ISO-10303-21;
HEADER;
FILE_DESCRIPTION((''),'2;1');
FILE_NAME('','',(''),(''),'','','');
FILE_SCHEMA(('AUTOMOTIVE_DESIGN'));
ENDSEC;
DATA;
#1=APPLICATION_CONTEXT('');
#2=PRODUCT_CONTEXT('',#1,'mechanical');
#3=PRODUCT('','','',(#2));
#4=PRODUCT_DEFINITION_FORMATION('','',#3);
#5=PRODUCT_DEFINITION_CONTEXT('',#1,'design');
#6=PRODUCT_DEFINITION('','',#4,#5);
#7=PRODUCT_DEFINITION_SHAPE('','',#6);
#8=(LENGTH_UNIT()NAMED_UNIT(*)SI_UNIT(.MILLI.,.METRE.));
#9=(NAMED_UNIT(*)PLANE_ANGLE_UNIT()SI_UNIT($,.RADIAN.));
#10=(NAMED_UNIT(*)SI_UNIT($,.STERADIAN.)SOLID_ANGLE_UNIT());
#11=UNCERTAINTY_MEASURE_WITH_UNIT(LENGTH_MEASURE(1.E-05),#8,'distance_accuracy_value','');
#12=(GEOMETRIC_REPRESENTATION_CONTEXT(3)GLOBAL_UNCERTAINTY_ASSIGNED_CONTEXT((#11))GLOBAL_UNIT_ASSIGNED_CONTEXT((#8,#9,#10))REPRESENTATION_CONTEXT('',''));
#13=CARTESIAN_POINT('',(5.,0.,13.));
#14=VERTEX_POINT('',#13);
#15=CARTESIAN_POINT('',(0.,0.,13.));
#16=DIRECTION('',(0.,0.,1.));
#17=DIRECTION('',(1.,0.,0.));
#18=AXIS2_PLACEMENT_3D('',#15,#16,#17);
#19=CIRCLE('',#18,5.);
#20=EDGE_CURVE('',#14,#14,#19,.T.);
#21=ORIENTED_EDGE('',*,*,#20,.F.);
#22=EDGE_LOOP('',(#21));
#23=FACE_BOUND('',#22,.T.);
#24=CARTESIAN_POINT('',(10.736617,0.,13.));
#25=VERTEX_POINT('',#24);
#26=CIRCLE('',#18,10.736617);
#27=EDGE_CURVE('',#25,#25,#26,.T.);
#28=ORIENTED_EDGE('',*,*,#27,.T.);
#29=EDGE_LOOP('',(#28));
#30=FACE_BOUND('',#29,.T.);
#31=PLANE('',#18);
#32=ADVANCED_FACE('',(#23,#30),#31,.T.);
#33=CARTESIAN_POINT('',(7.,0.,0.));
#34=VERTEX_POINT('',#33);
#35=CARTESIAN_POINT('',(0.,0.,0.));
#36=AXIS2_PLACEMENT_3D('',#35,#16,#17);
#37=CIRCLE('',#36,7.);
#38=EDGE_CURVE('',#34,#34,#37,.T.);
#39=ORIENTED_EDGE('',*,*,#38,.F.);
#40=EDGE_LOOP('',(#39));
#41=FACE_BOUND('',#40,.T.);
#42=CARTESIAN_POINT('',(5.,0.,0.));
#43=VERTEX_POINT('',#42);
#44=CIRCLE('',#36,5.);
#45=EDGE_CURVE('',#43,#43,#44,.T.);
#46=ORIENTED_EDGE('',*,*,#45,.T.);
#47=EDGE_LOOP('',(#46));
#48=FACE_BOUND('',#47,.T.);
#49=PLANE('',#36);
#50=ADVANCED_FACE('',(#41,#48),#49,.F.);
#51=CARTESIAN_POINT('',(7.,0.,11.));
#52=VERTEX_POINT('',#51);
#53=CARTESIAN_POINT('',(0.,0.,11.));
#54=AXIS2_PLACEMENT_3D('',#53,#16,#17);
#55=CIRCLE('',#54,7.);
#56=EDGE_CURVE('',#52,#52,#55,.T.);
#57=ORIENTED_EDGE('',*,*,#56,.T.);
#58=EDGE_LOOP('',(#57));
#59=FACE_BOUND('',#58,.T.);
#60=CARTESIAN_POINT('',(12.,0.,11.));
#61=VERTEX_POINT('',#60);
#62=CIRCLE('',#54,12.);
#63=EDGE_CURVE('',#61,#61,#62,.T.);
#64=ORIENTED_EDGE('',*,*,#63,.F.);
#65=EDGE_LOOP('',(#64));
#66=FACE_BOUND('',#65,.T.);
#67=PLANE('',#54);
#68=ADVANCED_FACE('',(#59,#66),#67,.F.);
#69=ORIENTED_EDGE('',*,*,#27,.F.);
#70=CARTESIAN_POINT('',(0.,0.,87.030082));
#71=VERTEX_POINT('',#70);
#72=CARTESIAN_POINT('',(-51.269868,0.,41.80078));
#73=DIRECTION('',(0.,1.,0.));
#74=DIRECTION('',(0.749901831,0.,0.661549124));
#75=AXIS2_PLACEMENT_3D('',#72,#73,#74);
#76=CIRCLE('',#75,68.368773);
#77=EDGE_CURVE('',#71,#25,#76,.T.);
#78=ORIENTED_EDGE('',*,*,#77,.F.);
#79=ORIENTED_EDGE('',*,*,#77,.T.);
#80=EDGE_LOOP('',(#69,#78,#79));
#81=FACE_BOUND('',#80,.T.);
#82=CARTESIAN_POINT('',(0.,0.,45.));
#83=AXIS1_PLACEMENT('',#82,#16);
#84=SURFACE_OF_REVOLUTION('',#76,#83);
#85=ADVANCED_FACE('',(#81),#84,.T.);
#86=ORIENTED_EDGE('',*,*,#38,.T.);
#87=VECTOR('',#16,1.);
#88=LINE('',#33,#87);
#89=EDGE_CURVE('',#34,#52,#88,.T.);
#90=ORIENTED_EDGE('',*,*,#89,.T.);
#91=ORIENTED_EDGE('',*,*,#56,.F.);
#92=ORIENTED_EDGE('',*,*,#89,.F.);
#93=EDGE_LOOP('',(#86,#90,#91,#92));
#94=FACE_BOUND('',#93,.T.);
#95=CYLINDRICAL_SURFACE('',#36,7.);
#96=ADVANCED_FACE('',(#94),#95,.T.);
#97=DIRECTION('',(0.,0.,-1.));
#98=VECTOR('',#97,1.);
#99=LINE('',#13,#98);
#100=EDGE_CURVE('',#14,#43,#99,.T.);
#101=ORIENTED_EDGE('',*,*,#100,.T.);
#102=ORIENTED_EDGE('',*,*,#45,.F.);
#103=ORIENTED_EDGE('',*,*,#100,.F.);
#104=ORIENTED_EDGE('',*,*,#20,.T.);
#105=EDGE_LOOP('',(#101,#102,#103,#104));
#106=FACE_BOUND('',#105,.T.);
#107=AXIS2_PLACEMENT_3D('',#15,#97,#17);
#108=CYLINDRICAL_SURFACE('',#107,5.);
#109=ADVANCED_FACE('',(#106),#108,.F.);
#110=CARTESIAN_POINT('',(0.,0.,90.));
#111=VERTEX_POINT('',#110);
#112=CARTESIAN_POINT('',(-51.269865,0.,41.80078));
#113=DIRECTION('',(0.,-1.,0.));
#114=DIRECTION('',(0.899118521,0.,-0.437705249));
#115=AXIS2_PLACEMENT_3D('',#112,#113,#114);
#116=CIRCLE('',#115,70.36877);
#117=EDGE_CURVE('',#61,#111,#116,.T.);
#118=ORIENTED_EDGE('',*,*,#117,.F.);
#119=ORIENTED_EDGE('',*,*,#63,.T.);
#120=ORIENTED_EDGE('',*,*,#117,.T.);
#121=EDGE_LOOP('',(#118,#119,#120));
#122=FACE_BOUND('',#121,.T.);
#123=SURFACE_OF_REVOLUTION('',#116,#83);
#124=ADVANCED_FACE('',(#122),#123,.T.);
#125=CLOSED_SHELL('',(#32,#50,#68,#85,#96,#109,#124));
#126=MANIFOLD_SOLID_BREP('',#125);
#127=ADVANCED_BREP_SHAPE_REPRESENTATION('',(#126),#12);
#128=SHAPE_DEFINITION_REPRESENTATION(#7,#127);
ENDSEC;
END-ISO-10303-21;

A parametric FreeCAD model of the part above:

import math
import FreeCAD as App
import Part
import Sketcher

doc = App.newDocument("Part")
body = doc.addObject("PartDesign::Body", "Body")

# Sketch on XZ plane
sketch1 = doc.addObject("Sketcher::SketchObject", "Sketch")
body.addObject(sketch1)
sketch1.AttachmentSupport = (doc.XZ_Plane, [""])
sketch1.MapMode = "FlatFace"
sketch1.addGeometry([
    Part.LineSegment(App.Vector(0, 90, 0), App.Vector(0, 87, 0)),  # 0
    Part.ArcOfCircle(Part.Circle(App.Vector(-51.3, 41.8, 0), App.Vector(0, 0, 1), 68.4), math.radians(-25), math.radians(41)),  # 1
    Part.LineSegment(App.Vector(10.7, 13, 0), App.Vector(5, 13, 0)),  # 2
    Part.LineSegment(App.Vector(5, 13, 0), App.Vector(5, 0, 0)),  # 3
    Part.LineSegment(App.Vector(5, 0, 0), App.Vector(7, 0, 0)),  # 4
    Part.LineSegment(App.Vector(7, 0, 0), App.Vector(7, 11, 0)),  # 5
    Part.LineSegment(App.Vector(7, 11, 0), App.Vector(12, 11, 0)),  # 6
    Part.ArcOfCircle(Part.Circle(App.Vector(-51.3, 41.8, 0), App.Vector(0, 0, 1), 70.4), math.radians(-26), math.radians(43)),  # 7
], False)
sketch1.addConstraint([
    Sketcher.Constraint("Coincident", 0, 2, 1, 2),
    Sketcher.Constraint("Coincident", 1, 1, 2, 1),
    Sketcher.Constraint("Coincident", 2, 2, 3, 1),
    Sketcher.Constraint("Coincident", 3, 2, 4, 1),
    Sketcher.Constraint("Coincident", 4, 2, 5, 1),
    Sketcher.Constraint("Coincident", 5, 2, 6, 1),
    Sketcher.Constraint("Coincident", 6, 2, 7, 1),
    Sketcher.Constraint("Coincident", 7, 2, 0, 1),
    Sketcher.Constraint("Vertical", 0),
    Sketcher.Constraint("Horizontal", 2),
    Sketcher.Constraint("Vertical", 3),
    Sketcher.Constraint("Horizontal", 4),
    Sketcher.Constraint("Vertical", 5),
    Sketcher.Constraint("Horizontal", 6),
    Sketcher.Constraint("Coincident", 7, 3, 1, 3),
    Sketcher.Constraint("PointOnObject", 0, 2, -2),
    Sketcher.Constraint("PointOnObject", 3, 2, -1),
    Sketcher.Constraint("DistanceX", 4, 1, 4, 2, 2.0),
    Sketcher.Constraint("DistanceX", 6, 1, 6, 2, 5.0),
    Sketcher.Constraint("DistanceY", 3, 2, 3, 1, 13.0),
    Sketcher.Constraint("DistanceY", 5, 1, 5, 2, 11.0),
    Sketcher.Constraint("DistanceX", -1, 1, 2, 2, 5.0),
    Sketcher.Constraint("DistanceY", -1, 1, 7, 2, 90.0),
    Sketcher.Constraint("Radius", 7, 70.36877),
    Sketcher.Constraint("Radius", 1, 68.368773),
])
revolution = doc.addObject("PartDesign::Revolution", "Revolution")
body.addObject(revolution)
revolution.Profile = sketch1
revolution.ReferenceAxis = (sketch1, ["V_Axis"])
revolution.Angle = 360

doc.recompute()
